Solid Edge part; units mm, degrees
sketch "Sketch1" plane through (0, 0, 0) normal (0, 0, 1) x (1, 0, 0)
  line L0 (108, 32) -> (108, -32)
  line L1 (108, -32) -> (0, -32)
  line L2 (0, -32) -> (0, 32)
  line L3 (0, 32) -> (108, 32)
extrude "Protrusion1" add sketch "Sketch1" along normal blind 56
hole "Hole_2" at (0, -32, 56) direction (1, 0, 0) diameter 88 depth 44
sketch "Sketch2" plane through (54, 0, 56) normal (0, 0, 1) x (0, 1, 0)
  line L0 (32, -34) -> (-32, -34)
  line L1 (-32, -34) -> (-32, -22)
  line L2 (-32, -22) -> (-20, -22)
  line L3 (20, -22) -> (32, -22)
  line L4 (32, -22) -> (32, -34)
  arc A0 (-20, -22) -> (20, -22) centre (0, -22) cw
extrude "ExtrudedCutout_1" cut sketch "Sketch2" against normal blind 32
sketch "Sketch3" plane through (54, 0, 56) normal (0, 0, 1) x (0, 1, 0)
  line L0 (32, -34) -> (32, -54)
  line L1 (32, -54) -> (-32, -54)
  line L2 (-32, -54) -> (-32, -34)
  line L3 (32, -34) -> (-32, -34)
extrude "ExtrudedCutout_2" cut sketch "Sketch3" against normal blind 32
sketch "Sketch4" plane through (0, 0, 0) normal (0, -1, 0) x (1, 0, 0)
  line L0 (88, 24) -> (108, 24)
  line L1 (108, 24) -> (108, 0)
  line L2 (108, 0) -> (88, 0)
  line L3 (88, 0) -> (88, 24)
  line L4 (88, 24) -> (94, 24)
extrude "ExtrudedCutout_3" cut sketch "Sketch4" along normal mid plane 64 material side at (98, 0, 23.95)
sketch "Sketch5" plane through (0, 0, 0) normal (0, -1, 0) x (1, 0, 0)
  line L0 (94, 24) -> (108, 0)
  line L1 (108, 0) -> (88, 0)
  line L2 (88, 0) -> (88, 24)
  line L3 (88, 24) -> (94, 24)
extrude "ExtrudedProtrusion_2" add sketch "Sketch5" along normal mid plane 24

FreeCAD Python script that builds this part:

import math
import FreeCAD as App
import Part
import Sketcher
from FreeCAD import Vector
Q = App.Units.Quantity


def add_polygon(sketch, points):
    """Adds a closed chain of lines whose ends are joined by coincident constraints."""
    first, n = sketch.GeometryCount, len(points)
    for a, b in zip(points, points[1:] + points[:1]):
        sketch.addGeometry(Part.LineSegment(App.Vector(*a, 0), App.Vector(*b, 0)), False)
    for i in range(n):
        sketch.addConstraint(Sketcher.Constraint("Coincident", first + i, 2, first + (i + 1) % n, 1))

doc = App.newDocument("Part")
body = doc.addObject("PartDesign::Body", "Body")

# Sketch on XY plane
sketch1 = doc.addObject("Sketcher::SketchObject", "Sketch")
body.addObject(sketch1)
sketch1.AttachmentSupport = (doc.XY_Plane, [""])
sketch1.MapMode = "FlatFace"
add_polygon(sketch1, [(108, -32), (108, 32), (0, 32), (0, -32)])  # lines 0-3
sketch1.addConstraint([
    Sketcher.Constraint("Vertical", 0),
    Sketcher.Constraint("Horizontal", 1),
    Sketcher.Constraint("Vertical", 2),
    Sketcher.Constraint("Horizontal", 3),
    Sketcher.Constraint("Symmetric", 1, 2, 2, 2, -1, 1),
    Sketcher.Constraint("DistanceX", 1, 2, 1, 1, Q("108 mm")),
    Sketcher.Constraint("DistanceY", 0, 1, 0, 2, Q("64 mm")),
])
pad1 = doc.addObject("PartDesign::Pad", "Pad")
body.addObject(pad1)
pad1.Profile = sketch1
pad1.Length = 56

# Sketch on YZ plane
sketch2 = doc.addObject("Sketcher::SketchObject", "Sketch001")
body.addObject(sketch2)
sketch2.AttachmentSupport = (doc.YZ_Plane, [""])
sketch2.MapMode = "FlatFace"
sketch2.addGeometry(Part.Circle(Vector(-32, 56, 0), Vector(0, 0, 1), 44), False)
sketch2.addConstraint([
    Sketcher.Constraint("Diameter", 0, Q("88 mm")),
    Sketcher.Constraint("DistanceX", 0, 3, -1, 1, Q("32 mm")),
    Sketcher.Constraint("DistanceY", -1, 1, 0, 3, Q("56 mm")),
])
doc.recompute()
hole = doc.addObject("PartDesign::Hole", "Hole")
body.addObject(hole)
hole.Profile = sketch2
hole.ThreadType = "None"
hole.Diameter = 88
hole.DepthType = "Dimension"
hole.Depth = 44
hole.DrillPoint = "Flat"
hole.Reversed = True

# Sketch on XY plane
sketch3 = doc.addObject("Sketcher::SketchObject", "Sketch002")
body.addObject(sketch3)
sketch3.AttachmentSupport = (doc.XY_Plane, [""])
sketch3.MapMode = "FlatFace"
sketch3.AttachmentOffset = App.Placement(Vector(0, 0, 56), App.Rotation())
sketch3.addGeometry([
    Part.LineSegment(Vector(88, -32, 0), Vector(88, 32, 0)),  # 0
    Part.LineSegment(Vector(88, 32, 0), Vector(76, 32, 0)),  # 1
    Part.LineSegment(Vector(76, 32, 0), Vector(76, 20, 0)),  # 2
    Part.ArcOfCircle(Part.Circle(Vector(76, 0, 0), Vector(0, 0, 1), 20), math.radians(90), math.radians(270)),  # 3
    Part.LineSegment(Vector(76, -20, 0), Vector(76, -32, 0)),  # 4
    Part.LineSegment(Vector(76, -32, 0), Vector(88, -32, 0)),  # 5
], False)
sketch3.addConstraint([
    Sketcher.Constraint("Coincident", 0, 2, 1, 1),
    Sketcher.Constraint("Coincident", 1, 2, 2, 1),
    Sketcher.Constraint("Coincident", 2, 2, 3, 1),
    Sketcher.Constraint("Coincident", 3, 2, 4, 1),
    Sketcher.Constraint("Coincident", 4, 2, 5, 1),
    Sketcher.Constraint("Coincident", 5, 2, 0, 1),
    Sketcher.Constraint("Vertical", 0),
    Sketcher.Constraint("Horizontal", 1),
    Sketcher.Constraint("Vertical", 2),
    Sketcher.Constraint("Vertical", 4),
    Sketcher.Constraint("Horizontal", 5),
    Sketcher.Constraint("Symmetric", 2, 2, 3, 2, -1),
    Sketcher.Constraint("Vertical", 3, 3, 1, 2),
    Sketcher.Constraint("Equal", 5, 2),
    Sketcher.Constraint("Equal", 2, 4),
    Sketcher.Constraint("Radius", 3, Q("20 mm")),
    Sketcher.Constraint("DistanceX", 1, 2, 1, 1, Q("12 mm")),
    Sketcher.Constraint("DistanceX", -1, 1, 3, 3, Q("76 mm")),
])
pocket1 = doc.addObject("PartDesign::Pocket", "Pocket")
body.addObject(pocket1)
pocket1.Profile = sketch3
pocket1.Length = 32

# Sketch on XY plane
sketch4 = doc.addObject("Sketcher::SketchObject", "Sketch003")
body.addObject(sketch4)
sketch4.AttachmentSupport = (doc.XY_Plane, [""])
sketch4.MapMode = "FlatFace"
sketch4.AttachmentOffset = App.Placement(Vector(0, 0, 56), App.Rotation())
add_polygon(sketch4, [(108, 32), (88, 32), (88, -32), (108, -32)])  # lines 0-3
sketch4.addConstraint([
    Sketcher.Constraint("Horizontal", 0),
    Sketcher.Constraint("Vertical", 1),
    Sketcher.Constraint("Horizontal", 2),
    Sketcher.Constraint("Vertical", 3),
    Sketcher.Constraint("DistanceX", 0, 2, 0, 1, Q("20 mm")),
    Sketcher.Constraint("DistanceY", 1, 2, 1, 1, Q("64 mm")),
    Sketcher.Constraint("DistanceX", -1, 1, 0, 2, Q("88 mm")),
    Sketcher.Constraint("DistanceY", -1, 1, 0, 2, Q("32 mm")),
])
pocket2 = doc.addObject("PartDesign::Pocket", "Pocket001")
body.addObject(pocket2)
pocket2.Profile = sketch4
pocket2.Length = 32

# Sketch on XZ plane
sketch5 = doc.addObject("Sketcher::SketchObject", "Sketch004")
body.addObject(sketch5)
sketch5.AttachmentSupport = (doc.XZ_Plane, [""])
sketch5.MapMode = "FlatFace"
add_polygon(sketch5, [(108, 24), (88, 24), (88, 0), (108, 0)])  # lines 0-3
sketch5.addConstraint([
    Sketcher.Constraint("Horizontal", 0),
    Sketcher.Constraint("Vertical", 1),
    Sketcher.Constraint("Horizontal", 2),
    Sketcher.Constraint("Vertical", 3),
    Sketcher.Constraint("PointOnObject", 1, 2, -1),
    Sketcher.Constraint("DistanceX", 0, 2, 0, 1, Q("20 mm")),
    Sketcher.Constraint("DistanceY", 1, 2, 1, 1, Q("24 mm")),
    Sketcher.Constraint("DistanceX", -1, 1, 0, 2, Q("88 mm")),
])
pocket3 = doc.addObject("PartDesign::Pocket", "Pocket002")
body.addObject(pocket3)
pocket3.Profile = sketch5
pocket3.Length = 64
pocket3.Midplane = True

# Sketch on XZ plane
sketch6 = doc.addObject("Sketcher::SketchObject", "Sketch005")
body.addObject(sketch6)
sketch6.AttachmentSupport = (doc.XZ_Plane, [""])
sketch6.MapMode = "FlatFace"
add_polygon(sketch6, [(108, 0), (94, 24), (88, 24), (88, 0)])  # lines 0-3
sketch6.addConstraint([
    Sketcher.Constraint("Horizontal", 1),
    Sketcher.Constraint("Vertical", 2),
    Sketcher.Constraint("Horizontal", 3),
    Sketcher.Constraint("PointOnObject", 2, 2, -1),
    Sketcher.Constraint("DistanceX", 1, 2, 1, 1, Q("6 mm")),
    Sketcher.Constraint("DistanceX", 3, 1, 3, 2, Q("20 mm")),
    Sketcher.Constraint("DistanceY", 2, 2, 2, 1, Q("24 mm")),
    Sketcher.Constraint("DistanceX", -1, 1, 0, 2, Q("94 mm")),
])
pad2 = doc.addObject("PartDesign::Pad", "Pad001")
body.addObject(pad2)
pad2.Profile = sketch6
pad2.Length = 24
pad2.Midplane = True

doc.recompute()
